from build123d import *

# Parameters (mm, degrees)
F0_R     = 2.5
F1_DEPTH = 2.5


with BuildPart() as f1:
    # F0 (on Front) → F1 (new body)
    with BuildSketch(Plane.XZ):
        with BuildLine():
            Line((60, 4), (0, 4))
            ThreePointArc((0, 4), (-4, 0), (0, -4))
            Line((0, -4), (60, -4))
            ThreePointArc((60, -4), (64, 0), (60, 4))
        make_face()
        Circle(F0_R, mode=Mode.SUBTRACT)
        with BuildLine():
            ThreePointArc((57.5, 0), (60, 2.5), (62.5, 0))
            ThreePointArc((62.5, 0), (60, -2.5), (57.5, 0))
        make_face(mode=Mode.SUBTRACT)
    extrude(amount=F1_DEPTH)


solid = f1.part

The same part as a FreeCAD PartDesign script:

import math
import FreeCAD as App
import Part
import Sketcher

V = App.Vector

doc = App.newDocument("Part")
body = doc.addObject("PartDesign::Body", "Body")

# Sketch on XZ plane
sketch1 = body.newObject("Sketcher::SketchObject", "Sketch")
sketch1.AttachmentSupport = (doc.getObject("XZ_Plane"), [""])
sketch1.MapMode = "FlatFace"
sketch1.addGeometry([
    Part.LineSegment(V(60, 4, 0), V(0, 4, 0)),  # 0
    Part.ArcOfCircle(Part.Circle(V(0, 0, 0), V(0, 0, 1), 4), math.radians(90), math.radians(270)),  # 1
    Part.LineSegment(V(0, -4, 0), V(60, -4, 0)),  # 2
    Part.ArcOfCircle(Part.Circle(V(60, 0, 0), V(0, 0, 1), 4), math.radians(-90), math.radians(90)),  # 3
    Part.Circle(V(0, 0, 0), V(0, 0, 1), 2.5),  # 4
    Part.Circle(V(60, 0, 0), V(0, 0, 1), 2.5),  # 5
], False)
sketch1.addConstraint([
    Sketcher.Constraint("Tangent", 0, 2, 1, 1),
    Sketcher.Constraint("Tangent", 1, 2, 2, 1),
    Sketcher.Constraint("Tangent", 2, 2, 3, 1),
    Sketcher.Constraint("Tangent", 3, 2, 0, 1),
    Sketcher.Constraint("Horizontal", 0),
    Sketcher.Constraint("Horizontal", 2),
    Sketcher.Constraint("Coincident", 1, 3, -1, 1),
    Sketcher.Constraint("Coincident", 4, 3, -1, 1),
    Sketcher.Constraint("Coincident", 5, 3, 3, 3),
    Sketcher.Constraint("Equal", 4, 5),
    Sketcher.Constraint("Diameter", 4, 5.0),
    Sketcher.Constraint("Radius", 1, 4.0),
    Sketcher.Constraint("DistanceX", 0, 2, 0, 1, 60.0),
])
pad1 = body.newObject("PartDesign::Pad", "Pad")
pad1.Profile = sketch1
pad1.Length = 2.5

doc.recompute()
